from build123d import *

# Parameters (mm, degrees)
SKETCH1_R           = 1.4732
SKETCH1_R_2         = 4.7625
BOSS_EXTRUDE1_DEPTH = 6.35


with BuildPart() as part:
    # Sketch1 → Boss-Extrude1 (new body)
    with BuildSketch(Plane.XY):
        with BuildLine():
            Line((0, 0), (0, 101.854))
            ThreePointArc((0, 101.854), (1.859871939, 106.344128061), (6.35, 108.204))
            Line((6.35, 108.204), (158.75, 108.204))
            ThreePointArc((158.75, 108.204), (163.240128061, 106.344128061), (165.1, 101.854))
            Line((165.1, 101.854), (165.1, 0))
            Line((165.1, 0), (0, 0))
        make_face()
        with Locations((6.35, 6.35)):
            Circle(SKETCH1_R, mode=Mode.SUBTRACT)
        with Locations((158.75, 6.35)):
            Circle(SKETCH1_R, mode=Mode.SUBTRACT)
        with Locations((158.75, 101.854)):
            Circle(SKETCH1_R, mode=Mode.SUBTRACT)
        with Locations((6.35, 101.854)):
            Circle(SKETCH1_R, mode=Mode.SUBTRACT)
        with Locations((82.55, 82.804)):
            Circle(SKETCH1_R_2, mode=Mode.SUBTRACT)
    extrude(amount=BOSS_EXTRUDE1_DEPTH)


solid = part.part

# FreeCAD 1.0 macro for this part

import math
import FreeCAD as App
import Part
import Sketcher

V = App.Vector
Q = App.Units.Quantity

doc = App.newDocument("Part")
body = doc.addObject("PartDesign::Body", "Body")

# Sketch on XY plane
sketch1 = doc.addObject("Sketcher::SketchObject", "Sketch")
body.addObject(sketch1)
sketch1.AttachmentSupport = (doc.XY_Plane, [""])
sketch1.MapMode = "FlatFace"
sketch1.addGeometry([
    Part.LineSegment(V(0, 101.9, 0), V(0, 0, 0)),  # 0
    Part.LineSegment(V(0, 0, 0), V(165.1, 0, 0)),  # 1
    Part.LineSegment(V(165.1, 0, 0), V(165.1, 101.9, 0)),  # 2
    Part.ArcOfCircle(Part.Circle(V(158.8, 101.9, 0), V(0, 0, 1), 6.3), math.radians(0), math.radians(90)),  # 3
    Part.LineSegment(V(158.8, 108.2, 0), V(6.3, 108.2, 0)),  # 4
    Part.ArcOfCircle(Part.Circle(V(6.3, 101.9, 0), V(0, 0, 1), 6.3), math.radians(90), math.radians(180)),  # 5
    Part.Circle(V(158.8, 6.3, 0), V(0, 0, 1), 1.5),  # 6
    Part.Circle(V(6.3, 6.3, 0), V(0, 0, 1), 1.5),  # 7
    Part.Circle(V(158.8, 101.9, 0), V(0, 0, 1), 1.5),  # 8
    Part.Circle(V(82.5, 82.8, 0), V(0, 0, 1), 4.8),  # 9
    Part.Circle(V(6.3, 101.9, 0), V(0, 0, 1), 1.5),  # 10
], False)
sketch1.addConstraint([
    Sketcher.Constraint("Coincident", 0, 2, 1, 1),
    Sketcher.Constraint("Coincident", 1, 2, 2, 1),
    Sketcher.Constraint("Tangent", 2, 2, 3, 1),
    Sketcher.Constraint("Tangent", 3, 2, 4, 1),
    Sketcher.Constraint("Tangent", 4, 2, 5, 1),
    Sketcher.Constraint("Tangent", 5, 2, 0, 1),
    Sketcher.Constraint("Vertical", 0),
    Sketcher.Constraint("Horizontal", 1),
    Sketcher.Constraint("Vertical", 2),
    Sketcher.Constraint("Horizontal", 4),
    Sketcher.Constraint("Coincident", 0, 2, -1, 1),
    Sketcher.Constraint("Coincident", 8, 3, 3, 3),
    Sketcher.Constraint("Coincident", 10, 3, 5, 3),
    Sketcher.Constraint("Equal", 3, 5),
    Sketcher.Constraint("Equal", 6, 7),
    Sketcher.Constraint("Equal", 7, 8),
    Sketcher.Constraint("Equal", 8, 10),
    Sketcher.Constraint("Horizontal", 6, 3, 7, 3),
    Sketcher.Constraint("Vertical", 3, 3, 6, 3),
    Sketcher.Constraint("Vertical", 5, 3, 7, 3),
    Sketcher.Constraint("DistanceX", 4, 2, 4, 1, Q("6 in")),
    Sketcher.Constraint("Radius", 3, Q("0.25 in")),
    Sketcher.Constraint("Diameter", 6, Q("0.116 in")),
    Sketcher.Constraint("Diameter", 9, Q("0.375 in")),
    Sketcher.Constraint("DistanceX", 9, 3, 8, 3, Q("3 in")),
    Sketcher.Constraint("DistanceY", 9, 3, 3, 2, Q("1 in")),
    Sketcher.Constraint("DistanceY", 0, 2, 0, 1, Q("4.01 in")),
    Sketcher.Constraint("DistanceY", -1, 1, 6, 3, Q("0.25 in")),
])
pad1 = doc.addObject("PartDesign::Pad", "Pad")
body.addObject(pad1)
pad1.Profile = sketch1
pad1.Length = Q("0.25 in")

doc.recompute()
